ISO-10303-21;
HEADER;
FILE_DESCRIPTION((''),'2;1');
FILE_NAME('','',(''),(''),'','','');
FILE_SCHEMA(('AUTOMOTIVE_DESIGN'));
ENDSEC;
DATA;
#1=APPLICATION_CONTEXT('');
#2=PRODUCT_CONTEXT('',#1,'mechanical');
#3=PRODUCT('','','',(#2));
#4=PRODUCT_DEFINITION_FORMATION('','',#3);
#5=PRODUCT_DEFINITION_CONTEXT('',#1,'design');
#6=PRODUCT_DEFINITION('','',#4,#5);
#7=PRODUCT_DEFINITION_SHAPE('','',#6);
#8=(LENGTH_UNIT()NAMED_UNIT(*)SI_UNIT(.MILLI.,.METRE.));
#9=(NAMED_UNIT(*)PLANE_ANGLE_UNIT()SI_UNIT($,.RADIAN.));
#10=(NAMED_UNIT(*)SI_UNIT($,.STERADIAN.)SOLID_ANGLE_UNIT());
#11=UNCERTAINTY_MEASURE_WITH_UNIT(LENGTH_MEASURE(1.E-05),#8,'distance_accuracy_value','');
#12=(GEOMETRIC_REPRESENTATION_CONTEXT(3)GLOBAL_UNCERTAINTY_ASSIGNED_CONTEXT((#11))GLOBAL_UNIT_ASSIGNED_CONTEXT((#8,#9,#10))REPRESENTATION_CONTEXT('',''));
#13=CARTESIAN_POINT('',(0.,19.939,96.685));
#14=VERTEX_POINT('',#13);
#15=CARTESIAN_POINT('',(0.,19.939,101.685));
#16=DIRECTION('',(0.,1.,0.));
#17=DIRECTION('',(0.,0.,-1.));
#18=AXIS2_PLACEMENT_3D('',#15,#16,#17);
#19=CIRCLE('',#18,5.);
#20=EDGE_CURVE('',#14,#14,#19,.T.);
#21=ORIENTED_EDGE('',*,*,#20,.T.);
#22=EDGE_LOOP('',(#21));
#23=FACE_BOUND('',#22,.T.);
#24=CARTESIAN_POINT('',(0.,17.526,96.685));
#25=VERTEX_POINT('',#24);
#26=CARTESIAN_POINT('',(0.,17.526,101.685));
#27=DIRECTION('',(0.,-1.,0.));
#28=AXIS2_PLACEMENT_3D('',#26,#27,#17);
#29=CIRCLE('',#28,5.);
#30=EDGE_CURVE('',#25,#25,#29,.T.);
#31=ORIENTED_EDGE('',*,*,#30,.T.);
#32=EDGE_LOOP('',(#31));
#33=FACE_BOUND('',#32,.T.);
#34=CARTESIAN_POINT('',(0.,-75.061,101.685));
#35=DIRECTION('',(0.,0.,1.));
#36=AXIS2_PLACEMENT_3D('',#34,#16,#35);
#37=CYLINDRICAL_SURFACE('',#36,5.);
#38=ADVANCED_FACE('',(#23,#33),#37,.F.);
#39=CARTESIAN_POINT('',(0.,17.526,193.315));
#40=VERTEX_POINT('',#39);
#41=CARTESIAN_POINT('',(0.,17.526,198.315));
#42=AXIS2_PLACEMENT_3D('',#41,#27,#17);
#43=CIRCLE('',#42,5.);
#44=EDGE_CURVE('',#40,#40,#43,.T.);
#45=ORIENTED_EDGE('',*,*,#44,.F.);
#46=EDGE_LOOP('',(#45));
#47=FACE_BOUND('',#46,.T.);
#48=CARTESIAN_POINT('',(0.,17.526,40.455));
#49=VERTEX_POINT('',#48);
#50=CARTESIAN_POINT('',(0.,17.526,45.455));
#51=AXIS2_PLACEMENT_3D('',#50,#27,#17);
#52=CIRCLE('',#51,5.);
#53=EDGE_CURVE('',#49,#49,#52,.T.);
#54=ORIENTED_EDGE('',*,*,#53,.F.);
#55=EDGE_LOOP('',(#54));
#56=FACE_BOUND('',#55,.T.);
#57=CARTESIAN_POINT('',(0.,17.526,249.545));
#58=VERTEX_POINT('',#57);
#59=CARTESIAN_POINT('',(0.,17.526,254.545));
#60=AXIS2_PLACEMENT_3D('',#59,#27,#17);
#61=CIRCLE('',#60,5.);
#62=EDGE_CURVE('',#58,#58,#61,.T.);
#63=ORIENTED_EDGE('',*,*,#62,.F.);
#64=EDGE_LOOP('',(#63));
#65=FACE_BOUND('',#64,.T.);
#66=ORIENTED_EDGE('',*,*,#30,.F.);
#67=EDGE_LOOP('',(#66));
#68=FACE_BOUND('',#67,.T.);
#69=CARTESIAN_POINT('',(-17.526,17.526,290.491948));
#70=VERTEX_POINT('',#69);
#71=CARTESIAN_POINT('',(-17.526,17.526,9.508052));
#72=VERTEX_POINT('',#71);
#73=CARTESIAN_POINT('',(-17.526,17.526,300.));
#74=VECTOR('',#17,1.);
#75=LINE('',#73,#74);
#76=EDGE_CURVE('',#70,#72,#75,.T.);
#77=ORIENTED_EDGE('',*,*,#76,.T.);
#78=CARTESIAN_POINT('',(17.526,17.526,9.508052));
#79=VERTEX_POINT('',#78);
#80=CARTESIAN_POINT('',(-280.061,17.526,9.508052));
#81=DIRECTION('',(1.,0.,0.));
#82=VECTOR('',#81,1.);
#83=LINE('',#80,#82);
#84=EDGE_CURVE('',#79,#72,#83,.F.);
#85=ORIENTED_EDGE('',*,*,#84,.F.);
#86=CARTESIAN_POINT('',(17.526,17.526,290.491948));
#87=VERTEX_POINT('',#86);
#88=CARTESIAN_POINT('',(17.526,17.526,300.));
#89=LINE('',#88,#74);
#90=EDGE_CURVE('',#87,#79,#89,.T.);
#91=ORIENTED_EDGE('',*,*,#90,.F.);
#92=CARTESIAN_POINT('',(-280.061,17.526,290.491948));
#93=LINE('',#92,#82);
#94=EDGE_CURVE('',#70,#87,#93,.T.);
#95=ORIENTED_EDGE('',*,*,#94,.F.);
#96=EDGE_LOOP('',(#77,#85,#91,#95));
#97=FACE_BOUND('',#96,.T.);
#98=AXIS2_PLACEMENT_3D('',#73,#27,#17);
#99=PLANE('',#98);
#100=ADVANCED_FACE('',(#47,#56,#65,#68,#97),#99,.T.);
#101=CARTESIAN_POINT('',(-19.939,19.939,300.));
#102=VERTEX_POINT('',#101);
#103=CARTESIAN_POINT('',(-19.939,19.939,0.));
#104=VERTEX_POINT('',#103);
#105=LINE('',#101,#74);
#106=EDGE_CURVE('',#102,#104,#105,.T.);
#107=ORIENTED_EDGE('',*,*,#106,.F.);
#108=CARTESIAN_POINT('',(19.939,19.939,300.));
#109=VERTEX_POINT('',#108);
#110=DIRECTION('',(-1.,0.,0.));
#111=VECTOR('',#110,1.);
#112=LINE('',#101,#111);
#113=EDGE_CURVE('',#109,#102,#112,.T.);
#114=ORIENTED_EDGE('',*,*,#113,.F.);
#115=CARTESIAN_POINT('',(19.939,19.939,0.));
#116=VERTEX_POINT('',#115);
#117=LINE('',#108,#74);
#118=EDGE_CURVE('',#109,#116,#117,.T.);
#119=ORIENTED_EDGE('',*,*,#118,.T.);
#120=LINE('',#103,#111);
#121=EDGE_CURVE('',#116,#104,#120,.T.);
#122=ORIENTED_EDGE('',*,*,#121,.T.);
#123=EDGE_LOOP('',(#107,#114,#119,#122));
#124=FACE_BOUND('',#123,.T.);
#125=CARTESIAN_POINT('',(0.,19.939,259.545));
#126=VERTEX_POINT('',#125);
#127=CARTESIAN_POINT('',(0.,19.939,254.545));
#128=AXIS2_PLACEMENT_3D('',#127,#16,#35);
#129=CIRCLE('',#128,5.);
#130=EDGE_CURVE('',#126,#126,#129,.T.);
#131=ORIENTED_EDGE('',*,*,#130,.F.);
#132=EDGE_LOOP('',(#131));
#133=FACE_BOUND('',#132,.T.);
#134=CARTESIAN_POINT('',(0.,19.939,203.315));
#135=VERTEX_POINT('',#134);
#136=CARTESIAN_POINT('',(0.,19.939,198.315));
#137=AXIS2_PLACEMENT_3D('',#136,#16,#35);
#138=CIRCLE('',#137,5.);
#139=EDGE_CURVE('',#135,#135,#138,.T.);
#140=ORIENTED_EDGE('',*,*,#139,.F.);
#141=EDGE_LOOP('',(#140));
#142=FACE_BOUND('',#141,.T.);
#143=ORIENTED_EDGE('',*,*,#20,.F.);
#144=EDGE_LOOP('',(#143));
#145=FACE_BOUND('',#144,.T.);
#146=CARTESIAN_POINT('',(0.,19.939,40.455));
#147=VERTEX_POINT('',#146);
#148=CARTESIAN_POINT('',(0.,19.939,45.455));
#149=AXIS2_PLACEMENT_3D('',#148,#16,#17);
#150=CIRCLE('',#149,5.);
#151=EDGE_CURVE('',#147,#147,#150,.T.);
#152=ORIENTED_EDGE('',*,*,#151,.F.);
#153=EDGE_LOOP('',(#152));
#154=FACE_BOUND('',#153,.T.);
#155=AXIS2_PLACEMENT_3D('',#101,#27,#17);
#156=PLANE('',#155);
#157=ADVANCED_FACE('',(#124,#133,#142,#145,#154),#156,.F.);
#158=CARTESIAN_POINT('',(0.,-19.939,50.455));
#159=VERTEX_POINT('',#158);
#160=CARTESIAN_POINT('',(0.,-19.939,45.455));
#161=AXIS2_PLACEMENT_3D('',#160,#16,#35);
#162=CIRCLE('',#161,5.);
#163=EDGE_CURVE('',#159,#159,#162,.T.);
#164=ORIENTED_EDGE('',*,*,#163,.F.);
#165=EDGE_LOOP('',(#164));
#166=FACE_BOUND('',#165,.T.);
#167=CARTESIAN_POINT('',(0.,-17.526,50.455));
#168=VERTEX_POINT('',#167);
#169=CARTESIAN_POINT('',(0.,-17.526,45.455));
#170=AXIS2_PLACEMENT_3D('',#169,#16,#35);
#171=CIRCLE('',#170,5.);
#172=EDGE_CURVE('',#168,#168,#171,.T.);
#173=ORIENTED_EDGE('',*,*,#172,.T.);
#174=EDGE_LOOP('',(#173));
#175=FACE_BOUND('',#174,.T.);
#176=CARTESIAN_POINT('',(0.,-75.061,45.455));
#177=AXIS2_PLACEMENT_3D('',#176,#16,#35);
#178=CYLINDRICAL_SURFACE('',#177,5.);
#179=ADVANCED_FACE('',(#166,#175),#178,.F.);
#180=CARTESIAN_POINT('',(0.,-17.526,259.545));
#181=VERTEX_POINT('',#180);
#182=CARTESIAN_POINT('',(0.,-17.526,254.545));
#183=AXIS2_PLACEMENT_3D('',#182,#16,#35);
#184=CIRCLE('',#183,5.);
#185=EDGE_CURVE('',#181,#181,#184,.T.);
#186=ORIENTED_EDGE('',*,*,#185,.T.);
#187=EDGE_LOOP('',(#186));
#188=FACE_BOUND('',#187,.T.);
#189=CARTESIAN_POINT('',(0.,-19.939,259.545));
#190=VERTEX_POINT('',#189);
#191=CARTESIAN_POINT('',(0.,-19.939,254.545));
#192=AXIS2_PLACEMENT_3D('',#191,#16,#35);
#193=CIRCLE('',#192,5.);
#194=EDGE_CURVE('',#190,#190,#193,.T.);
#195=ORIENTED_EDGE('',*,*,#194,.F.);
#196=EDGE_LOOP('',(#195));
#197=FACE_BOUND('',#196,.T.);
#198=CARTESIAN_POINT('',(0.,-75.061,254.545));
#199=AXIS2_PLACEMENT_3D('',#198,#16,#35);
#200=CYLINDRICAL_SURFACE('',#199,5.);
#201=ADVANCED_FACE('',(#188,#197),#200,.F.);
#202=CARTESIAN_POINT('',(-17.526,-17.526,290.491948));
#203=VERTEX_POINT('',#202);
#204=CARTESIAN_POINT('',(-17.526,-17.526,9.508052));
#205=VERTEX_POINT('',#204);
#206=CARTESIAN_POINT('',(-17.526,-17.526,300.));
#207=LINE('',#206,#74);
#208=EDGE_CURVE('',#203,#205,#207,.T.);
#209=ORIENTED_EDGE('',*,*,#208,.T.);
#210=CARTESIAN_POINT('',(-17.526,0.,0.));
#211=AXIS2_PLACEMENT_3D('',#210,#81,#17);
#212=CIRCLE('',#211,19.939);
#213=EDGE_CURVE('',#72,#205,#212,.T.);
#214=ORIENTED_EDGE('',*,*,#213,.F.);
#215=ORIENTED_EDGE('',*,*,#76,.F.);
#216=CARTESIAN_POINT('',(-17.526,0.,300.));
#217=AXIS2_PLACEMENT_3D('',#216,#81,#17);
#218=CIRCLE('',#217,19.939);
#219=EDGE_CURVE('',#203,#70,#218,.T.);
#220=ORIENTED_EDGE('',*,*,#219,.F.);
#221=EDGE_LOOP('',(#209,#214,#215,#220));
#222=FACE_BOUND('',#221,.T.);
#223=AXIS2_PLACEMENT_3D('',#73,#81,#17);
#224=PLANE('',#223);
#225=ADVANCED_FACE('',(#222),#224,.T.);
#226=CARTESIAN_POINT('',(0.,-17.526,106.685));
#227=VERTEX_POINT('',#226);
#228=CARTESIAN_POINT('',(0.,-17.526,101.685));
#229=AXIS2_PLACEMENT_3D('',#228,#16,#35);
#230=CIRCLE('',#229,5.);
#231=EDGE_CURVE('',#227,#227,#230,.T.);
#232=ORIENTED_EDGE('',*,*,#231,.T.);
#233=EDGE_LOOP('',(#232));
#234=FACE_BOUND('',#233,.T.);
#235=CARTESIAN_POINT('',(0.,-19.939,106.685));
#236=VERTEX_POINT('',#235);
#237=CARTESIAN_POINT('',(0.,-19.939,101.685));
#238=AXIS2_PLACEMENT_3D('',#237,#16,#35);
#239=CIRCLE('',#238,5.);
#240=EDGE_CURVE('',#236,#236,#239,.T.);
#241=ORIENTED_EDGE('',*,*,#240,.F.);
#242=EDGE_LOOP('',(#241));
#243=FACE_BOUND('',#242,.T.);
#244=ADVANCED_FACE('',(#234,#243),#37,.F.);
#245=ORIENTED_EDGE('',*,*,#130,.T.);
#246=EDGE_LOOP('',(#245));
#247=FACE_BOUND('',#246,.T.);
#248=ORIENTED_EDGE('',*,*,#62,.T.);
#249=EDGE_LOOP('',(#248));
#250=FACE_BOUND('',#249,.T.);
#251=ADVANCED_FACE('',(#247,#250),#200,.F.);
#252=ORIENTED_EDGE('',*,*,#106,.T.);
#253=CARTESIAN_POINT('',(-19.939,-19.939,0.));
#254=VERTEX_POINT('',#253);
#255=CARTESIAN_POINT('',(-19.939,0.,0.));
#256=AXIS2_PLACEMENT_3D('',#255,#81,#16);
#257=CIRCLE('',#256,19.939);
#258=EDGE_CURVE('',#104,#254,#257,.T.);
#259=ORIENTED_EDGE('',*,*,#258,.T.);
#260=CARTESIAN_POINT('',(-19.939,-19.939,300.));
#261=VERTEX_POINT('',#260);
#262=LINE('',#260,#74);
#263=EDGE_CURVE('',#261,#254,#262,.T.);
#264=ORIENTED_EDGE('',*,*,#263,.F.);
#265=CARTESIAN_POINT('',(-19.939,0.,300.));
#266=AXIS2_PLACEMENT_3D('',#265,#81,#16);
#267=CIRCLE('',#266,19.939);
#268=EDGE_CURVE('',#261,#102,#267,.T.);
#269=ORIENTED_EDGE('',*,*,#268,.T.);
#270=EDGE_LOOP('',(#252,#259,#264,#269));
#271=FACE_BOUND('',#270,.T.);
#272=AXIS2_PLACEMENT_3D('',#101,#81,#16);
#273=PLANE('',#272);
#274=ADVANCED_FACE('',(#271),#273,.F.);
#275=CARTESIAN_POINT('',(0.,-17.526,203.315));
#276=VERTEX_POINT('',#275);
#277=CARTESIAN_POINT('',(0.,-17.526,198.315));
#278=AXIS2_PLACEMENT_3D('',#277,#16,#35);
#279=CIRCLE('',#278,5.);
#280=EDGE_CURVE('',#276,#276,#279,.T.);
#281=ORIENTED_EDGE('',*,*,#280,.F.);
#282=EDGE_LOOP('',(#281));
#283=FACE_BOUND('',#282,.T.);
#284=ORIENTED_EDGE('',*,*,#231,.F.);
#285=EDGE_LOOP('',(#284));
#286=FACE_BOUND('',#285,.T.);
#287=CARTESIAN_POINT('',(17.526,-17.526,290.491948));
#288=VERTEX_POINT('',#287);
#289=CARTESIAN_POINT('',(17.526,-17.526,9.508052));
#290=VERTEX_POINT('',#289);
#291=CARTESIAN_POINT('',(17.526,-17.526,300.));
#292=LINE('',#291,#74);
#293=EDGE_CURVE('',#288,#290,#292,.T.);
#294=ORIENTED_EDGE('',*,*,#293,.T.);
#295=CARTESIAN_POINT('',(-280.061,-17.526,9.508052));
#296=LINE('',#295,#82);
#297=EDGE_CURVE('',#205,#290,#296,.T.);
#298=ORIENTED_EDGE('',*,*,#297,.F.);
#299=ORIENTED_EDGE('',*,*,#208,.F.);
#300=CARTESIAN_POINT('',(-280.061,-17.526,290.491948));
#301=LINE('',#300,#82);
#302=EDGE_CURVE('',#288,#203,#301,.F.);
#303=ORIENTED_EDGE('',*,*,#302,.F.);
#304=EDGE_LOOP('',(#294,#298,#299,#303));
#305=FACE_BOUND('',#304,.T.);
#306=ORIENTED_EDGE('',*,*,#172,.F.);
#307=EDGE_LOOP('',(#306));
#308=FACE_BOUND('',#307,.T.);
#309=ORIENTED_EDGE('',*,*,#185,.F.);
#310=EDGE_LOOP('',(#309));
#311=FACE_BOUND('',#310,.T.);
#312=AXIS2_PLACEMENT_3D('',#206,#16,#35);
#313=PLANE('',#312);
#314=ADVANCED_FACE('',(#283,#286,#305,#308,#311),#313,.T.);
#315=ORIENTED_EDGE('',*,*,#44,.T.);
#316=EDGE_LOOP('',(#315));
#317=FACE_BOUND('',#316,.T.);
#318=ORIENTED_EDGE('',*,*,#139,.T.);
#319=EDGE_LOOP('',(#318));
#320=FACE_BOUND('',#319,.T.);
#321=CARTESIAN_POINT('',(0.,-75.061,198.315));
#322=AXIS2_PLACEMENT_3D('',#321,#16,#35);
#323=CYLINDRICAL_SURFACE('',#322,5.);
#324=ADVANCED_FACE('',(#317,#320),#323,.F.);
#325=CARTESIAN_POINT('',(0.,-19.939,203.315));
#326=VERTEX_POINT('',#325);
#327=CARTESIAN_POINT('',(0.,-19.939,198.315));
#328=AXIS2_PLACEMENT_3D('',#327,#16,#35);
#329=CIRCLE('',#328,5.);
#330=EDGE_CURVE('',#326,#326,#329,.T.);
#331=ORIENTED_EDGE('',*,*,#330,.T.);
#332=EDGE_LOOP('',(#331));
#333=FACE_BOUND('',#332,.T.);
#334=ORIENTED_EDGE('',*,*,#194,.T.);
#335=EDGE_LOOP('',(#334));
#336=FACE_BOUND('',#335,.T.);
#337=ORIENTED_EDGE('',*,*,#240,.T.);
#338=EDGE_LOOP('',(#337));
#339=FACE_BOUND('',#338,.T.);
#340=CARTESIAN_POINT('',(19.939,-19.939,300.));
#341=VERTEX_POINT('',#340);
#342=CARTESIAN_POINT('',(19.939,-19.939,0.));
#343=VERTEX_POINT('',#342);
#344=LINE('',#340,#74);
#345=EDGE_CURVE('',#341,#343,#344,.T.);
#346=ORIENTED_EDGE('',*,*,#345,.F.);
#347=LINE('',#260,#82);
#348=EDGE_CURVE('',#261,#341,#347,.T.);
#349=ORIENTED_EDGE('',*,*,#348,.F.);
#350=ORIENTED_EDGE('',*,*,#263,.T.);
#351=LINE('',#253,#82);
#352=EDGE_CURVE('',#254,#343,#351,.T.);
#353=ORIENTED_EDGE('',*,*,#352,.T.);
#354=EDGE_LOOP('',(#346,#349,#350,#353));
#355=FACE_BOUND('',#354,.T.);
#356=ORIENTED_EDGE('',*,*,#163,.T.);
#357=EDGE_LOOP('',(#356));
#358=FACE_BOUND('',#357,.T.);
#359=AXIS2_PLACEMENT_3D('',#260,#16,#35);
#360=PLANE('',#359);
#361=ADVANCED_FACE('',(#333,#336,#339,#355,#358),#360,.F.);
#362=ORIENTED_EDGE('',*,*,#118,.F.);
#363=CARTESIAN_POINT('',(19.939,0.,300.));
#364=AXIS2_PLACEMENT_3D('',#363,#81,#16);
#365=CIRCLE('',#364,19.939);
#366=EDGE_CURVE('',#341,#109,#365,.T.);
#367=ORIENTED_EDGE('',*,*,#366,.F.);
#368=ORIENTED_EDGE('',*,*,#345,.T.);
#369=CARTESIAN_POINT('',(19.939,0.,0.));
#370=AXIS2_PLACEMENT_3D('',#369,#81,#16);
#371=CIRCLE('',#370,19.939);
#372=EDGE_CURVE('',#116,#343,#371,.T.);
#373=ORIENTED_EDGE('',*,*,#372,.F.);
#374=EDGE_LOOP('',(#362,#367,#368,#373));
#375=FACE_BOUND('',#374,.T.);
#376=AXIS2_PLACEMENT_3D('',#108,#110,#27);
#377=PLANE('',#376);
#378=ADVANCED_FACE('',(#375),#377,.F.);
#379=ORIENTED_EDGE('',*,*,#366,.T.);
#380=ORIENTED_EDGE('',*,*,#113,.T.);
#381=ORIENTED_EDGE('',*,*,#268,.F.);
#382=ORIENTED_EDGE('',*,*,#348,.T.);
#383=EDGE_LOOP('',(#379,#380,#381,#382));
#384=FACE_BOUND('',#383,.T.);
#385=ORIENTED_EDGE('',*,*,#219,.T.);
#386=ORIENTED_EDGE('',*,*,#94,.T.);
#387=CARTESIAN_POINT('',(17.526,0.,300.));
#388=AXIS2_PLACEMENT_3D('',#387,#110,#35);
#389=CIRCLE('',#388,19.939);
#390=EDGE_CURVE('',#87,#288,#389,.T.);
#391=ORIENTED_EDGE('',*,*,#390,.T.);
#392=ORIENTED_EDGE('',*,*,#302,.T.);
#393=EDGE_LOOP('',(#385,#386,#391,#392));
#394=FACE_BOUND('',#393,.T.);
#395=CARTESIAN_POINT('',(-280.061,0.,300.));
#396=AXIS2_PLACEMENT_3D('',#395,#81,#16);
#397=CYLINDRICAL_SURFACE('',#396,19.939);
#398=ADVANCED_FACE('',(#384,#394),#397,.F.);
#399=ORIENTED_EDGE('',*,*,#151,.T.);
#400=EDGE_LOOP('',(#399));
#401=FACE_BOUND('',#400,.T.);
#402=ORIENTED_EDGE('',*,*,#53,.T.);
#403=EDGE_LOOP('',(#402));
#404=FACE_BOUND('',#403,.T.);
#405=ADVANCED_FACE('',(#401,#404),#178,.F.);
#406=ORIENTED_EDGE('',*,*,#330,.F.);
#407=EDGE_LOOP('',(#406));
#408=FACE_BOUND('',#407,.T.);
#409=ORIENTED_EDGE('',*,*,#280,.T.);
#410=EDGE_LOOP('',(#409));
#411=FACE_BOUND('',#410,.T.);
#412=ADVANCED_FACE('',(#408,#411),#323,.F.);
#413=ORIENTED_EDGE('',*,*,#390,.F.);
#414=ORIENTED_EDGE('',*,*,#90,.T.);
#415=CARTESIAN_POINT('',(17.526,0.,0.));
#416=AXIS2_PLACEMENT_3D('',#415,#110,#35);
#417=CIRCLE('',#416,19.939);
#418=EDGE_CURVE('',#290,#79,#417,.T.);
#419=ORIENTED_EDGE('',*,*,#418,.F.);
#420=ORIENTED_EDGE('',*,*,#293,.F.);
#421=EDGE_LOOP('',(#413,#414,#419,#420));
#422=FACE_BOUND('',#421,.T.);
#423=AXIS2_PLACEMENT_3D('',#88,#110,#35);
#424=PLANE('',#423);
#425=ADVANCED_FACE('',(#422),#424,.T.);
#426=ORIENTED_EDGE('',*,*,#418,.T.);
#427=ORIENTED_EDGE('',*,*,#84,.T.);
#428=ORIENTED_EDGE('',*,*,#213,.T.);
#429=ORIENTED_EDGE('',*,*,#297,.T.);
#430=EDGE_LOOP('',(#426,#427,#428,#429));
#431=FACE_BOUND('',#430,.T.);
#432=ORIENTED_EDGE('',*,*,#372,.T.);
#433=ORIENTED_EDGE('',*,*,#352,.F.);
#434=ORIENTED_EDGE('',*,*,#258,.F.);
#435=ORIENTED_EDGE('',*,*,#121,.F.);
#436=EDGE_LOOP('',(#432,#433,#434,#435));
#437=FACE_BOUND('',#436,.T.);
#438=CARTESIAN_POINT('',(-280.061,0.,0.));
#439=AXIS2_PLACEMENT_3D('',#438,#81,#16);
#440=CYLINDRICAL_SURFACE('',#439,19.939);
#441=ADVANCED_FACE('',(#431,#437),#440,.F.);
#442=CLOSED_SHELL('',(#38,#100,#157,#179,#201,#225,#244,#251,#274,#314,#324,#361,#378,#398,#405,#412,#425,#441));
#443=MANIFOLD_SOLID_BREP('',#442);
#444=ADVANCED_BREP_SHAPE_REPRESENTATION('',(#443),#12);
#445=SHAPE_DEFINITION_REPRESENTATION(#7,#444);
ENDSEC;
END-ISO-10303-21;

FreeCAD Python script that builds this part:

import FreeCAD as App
import Part
import Sketcher

V = App.Vector


def add_polygon(sketch, points):
    """Adds a closed chain of lines whose ends are joined by coincident constraints."""
    first, n = sketch.GeometryCount, len(points)
    for a, b in zip(points, points[1:] + points[:1]):
        sketch.addGeometry(Part.LineSegment(App.Vector(*a, 0), App.Vector(*b, 0)), False)
    for i in range(n):
        sketch.addConstraint(Sketcher.Constraint("Coincident", first + i, 2, first + (i + 1) % n, 1))

doc = App.newDocument("Part")
body = doc.addObject("PartDesign::Body", "Body")

# Sketch on XY plane
sketch1 = body.newObject("Sketcher::SketchObject", "Sketch")
sketch1.AttachmentSupport = (doc.getObject("XY_Plane"), [""])
sketch1.MapMode = "FlatFace"
add_polygon(sketch1, [(-20, 20), (-20, -20), (20, -20), (20, 20)])  # lines 0-3
add_polygon(sketch1, [(18, -18), (-18, -18), (-18, 18), (18, 18)])  # lines 4-7
sketch1.addConstraint(Sketcher.Constraint("Vertical", 0))
sketch1.addConstraint(Sketcher.Constraint("Horizontal", 1))
sketch1.addConstraint(Sketcher.Constraint("Vertical", 2))
sketch1.addConstraint(Sketcher.Constraint("Horizontal", 3))
sketch1.addConstraint(Sketcher.Constraint("Horizontal", 4))
sketch1.addConstraint(Sketcher.Constraint("Vertical", 5))
sketch1.addConstraint(Sketcher.Constraint("Horizontal", 6))
sketch1.addConstraint(Sketcher.Constraint("Vertical", 7))
sketch1.addConstraint(Sketcher.Constraint("Symmetric", 0, 2, 2, 2, -1, 1))
sketch1.addConstraint(Sketcher.Constraint("Symmetric", 4, 2, 6, 2, -1, 1))
sketch1.addConstraint(Sketcher.Constraint("Equal", 3, 0))
sketch1.addConstraint(Sketcher.Constraint("Equal", 6, 5))
sketch1.addConstraint(Sketcher.Constraint("DistanceX", 1, 1, 1, 2, 39.878))
sketch1.addConstraint(Sketcher.Constraint("DistanceX", 4, 2, 4, 1, 35.052))
pad1 = body.newObject("PartDesign::Pad", "Pad")
pad1.Profile = sketch1
pad1.Length = 300

# Sketch on YZ plane
sketch2 = body.newObject("Sketcher::SketchObject", "Sketch001")
sketch2.AttachmentSupport = (doc.getObject("YZ_Plane"), [""])
sketch2.MapMode = "FlatFace"
sketch2.AttachmentOffset = App.Placement(V(0, 0, 19.939), App.Rotation())
sketch2.addGeometry(Part.Circle(V(0, 300, 0), V(0, 0, 1), 20), False)
sketch2.addGeometry(Part.Circle(V(0, 0, 0), V(0, 0, 1), 20), False)
sketch2.addConstraint(Sketcher.Constraint("Coincident", 1, 3, -1, 1))
sketch2.addConstraint(Sketcher.Constraint("Equal", 0, 1))
sketch2.addConstraint(Sketcher.Constraint("PointOnObject", 0, 3, -2))
sketch2.addConstraint(Sketcher.Constraint("Diameter", 0, 39.878))
sketch2.addConstraint(Sketcher.Constraint("DistanceY", -1, 1, 0, 3, 300.0))
pocket1 = body.newObject("PartDesign::Pocket", "Pocket")
pocket1.Profile = sketch2
pocket1.Length = 300

# Sketch on XZ plane
sketch3 = body.newObject("Sketcher::SketchObject", "Sketch002")
sketch3.AttachmentSupport = (doc.getObject("XZ_Plane"), [""])
sketch3.MapMode = "FlatFace"
sketch3.AttachmentOffset = App.Placement(V(0, 0, -19.939), App.Rotation())
sketch3.addGeometry(Part.Circle(V(0, 198, 0), V(0, 0, 1), 5), False)
sketch3.addGeometry(Part.Circle(V(0, 255, 0), V(0, 0, 1), 5), False)
sketch3.addGeometry(Part.Circle(V(0, 102, 0), V(0, 0, 1), 5), False)
sketch3.addGeometry(Part.Circle(V(0, 45, 0), V(0, 0, 1), 5), False)
sketch3.addConstraint(Sketcher.Constraint("Equal", 0, 1))
sketch3.addConstraint(Sketcher.Constraint("Equal", 1, 2))
sketch3.addConstraint(Sketcher.Constraint("Equal", 2, 3))
sketch3.addConstraint(Sketcher.Constraint("PointOnObject", 0, 3, -2))
sketch3.addConstraint(Sketcher.Constraint("PointOnObject", 1, 3, -2))
sketch3.addConstraint(Sketcher.Constraint("PointOnObject", 2, 3, -2))
sketch3.addConstraint(Sketcher.Constraint("PointOnObject", 3, 3, -2))
sketch3.addConstraint(Sketcher.Constraint("Diameter", 0, 10.0))
sketch3.addConstraint(Sketcher.Constraint("DistanceY", 0, 3, 1, 3, 56.23))
sketch3.addConstraint(Sketcher.Constraint("DistanceY", 2, 3, 0, 3, 96.63))
sketch3.addConstraint(Sketcher.Constraint("DistanceY", 3, 3, 2, 3, 56.23))
sketch3.addConstraint(Sketcher.Constraint("DistanceY", -1, 1, 0, 3, 198.315))
pocket2 = body.newObject("PartDesign::Pocket", "Pocket001")
pocket2.Profile = sketch3
pocket2.Length = 95
pocket2.Reversed = True

doc.recompute()
